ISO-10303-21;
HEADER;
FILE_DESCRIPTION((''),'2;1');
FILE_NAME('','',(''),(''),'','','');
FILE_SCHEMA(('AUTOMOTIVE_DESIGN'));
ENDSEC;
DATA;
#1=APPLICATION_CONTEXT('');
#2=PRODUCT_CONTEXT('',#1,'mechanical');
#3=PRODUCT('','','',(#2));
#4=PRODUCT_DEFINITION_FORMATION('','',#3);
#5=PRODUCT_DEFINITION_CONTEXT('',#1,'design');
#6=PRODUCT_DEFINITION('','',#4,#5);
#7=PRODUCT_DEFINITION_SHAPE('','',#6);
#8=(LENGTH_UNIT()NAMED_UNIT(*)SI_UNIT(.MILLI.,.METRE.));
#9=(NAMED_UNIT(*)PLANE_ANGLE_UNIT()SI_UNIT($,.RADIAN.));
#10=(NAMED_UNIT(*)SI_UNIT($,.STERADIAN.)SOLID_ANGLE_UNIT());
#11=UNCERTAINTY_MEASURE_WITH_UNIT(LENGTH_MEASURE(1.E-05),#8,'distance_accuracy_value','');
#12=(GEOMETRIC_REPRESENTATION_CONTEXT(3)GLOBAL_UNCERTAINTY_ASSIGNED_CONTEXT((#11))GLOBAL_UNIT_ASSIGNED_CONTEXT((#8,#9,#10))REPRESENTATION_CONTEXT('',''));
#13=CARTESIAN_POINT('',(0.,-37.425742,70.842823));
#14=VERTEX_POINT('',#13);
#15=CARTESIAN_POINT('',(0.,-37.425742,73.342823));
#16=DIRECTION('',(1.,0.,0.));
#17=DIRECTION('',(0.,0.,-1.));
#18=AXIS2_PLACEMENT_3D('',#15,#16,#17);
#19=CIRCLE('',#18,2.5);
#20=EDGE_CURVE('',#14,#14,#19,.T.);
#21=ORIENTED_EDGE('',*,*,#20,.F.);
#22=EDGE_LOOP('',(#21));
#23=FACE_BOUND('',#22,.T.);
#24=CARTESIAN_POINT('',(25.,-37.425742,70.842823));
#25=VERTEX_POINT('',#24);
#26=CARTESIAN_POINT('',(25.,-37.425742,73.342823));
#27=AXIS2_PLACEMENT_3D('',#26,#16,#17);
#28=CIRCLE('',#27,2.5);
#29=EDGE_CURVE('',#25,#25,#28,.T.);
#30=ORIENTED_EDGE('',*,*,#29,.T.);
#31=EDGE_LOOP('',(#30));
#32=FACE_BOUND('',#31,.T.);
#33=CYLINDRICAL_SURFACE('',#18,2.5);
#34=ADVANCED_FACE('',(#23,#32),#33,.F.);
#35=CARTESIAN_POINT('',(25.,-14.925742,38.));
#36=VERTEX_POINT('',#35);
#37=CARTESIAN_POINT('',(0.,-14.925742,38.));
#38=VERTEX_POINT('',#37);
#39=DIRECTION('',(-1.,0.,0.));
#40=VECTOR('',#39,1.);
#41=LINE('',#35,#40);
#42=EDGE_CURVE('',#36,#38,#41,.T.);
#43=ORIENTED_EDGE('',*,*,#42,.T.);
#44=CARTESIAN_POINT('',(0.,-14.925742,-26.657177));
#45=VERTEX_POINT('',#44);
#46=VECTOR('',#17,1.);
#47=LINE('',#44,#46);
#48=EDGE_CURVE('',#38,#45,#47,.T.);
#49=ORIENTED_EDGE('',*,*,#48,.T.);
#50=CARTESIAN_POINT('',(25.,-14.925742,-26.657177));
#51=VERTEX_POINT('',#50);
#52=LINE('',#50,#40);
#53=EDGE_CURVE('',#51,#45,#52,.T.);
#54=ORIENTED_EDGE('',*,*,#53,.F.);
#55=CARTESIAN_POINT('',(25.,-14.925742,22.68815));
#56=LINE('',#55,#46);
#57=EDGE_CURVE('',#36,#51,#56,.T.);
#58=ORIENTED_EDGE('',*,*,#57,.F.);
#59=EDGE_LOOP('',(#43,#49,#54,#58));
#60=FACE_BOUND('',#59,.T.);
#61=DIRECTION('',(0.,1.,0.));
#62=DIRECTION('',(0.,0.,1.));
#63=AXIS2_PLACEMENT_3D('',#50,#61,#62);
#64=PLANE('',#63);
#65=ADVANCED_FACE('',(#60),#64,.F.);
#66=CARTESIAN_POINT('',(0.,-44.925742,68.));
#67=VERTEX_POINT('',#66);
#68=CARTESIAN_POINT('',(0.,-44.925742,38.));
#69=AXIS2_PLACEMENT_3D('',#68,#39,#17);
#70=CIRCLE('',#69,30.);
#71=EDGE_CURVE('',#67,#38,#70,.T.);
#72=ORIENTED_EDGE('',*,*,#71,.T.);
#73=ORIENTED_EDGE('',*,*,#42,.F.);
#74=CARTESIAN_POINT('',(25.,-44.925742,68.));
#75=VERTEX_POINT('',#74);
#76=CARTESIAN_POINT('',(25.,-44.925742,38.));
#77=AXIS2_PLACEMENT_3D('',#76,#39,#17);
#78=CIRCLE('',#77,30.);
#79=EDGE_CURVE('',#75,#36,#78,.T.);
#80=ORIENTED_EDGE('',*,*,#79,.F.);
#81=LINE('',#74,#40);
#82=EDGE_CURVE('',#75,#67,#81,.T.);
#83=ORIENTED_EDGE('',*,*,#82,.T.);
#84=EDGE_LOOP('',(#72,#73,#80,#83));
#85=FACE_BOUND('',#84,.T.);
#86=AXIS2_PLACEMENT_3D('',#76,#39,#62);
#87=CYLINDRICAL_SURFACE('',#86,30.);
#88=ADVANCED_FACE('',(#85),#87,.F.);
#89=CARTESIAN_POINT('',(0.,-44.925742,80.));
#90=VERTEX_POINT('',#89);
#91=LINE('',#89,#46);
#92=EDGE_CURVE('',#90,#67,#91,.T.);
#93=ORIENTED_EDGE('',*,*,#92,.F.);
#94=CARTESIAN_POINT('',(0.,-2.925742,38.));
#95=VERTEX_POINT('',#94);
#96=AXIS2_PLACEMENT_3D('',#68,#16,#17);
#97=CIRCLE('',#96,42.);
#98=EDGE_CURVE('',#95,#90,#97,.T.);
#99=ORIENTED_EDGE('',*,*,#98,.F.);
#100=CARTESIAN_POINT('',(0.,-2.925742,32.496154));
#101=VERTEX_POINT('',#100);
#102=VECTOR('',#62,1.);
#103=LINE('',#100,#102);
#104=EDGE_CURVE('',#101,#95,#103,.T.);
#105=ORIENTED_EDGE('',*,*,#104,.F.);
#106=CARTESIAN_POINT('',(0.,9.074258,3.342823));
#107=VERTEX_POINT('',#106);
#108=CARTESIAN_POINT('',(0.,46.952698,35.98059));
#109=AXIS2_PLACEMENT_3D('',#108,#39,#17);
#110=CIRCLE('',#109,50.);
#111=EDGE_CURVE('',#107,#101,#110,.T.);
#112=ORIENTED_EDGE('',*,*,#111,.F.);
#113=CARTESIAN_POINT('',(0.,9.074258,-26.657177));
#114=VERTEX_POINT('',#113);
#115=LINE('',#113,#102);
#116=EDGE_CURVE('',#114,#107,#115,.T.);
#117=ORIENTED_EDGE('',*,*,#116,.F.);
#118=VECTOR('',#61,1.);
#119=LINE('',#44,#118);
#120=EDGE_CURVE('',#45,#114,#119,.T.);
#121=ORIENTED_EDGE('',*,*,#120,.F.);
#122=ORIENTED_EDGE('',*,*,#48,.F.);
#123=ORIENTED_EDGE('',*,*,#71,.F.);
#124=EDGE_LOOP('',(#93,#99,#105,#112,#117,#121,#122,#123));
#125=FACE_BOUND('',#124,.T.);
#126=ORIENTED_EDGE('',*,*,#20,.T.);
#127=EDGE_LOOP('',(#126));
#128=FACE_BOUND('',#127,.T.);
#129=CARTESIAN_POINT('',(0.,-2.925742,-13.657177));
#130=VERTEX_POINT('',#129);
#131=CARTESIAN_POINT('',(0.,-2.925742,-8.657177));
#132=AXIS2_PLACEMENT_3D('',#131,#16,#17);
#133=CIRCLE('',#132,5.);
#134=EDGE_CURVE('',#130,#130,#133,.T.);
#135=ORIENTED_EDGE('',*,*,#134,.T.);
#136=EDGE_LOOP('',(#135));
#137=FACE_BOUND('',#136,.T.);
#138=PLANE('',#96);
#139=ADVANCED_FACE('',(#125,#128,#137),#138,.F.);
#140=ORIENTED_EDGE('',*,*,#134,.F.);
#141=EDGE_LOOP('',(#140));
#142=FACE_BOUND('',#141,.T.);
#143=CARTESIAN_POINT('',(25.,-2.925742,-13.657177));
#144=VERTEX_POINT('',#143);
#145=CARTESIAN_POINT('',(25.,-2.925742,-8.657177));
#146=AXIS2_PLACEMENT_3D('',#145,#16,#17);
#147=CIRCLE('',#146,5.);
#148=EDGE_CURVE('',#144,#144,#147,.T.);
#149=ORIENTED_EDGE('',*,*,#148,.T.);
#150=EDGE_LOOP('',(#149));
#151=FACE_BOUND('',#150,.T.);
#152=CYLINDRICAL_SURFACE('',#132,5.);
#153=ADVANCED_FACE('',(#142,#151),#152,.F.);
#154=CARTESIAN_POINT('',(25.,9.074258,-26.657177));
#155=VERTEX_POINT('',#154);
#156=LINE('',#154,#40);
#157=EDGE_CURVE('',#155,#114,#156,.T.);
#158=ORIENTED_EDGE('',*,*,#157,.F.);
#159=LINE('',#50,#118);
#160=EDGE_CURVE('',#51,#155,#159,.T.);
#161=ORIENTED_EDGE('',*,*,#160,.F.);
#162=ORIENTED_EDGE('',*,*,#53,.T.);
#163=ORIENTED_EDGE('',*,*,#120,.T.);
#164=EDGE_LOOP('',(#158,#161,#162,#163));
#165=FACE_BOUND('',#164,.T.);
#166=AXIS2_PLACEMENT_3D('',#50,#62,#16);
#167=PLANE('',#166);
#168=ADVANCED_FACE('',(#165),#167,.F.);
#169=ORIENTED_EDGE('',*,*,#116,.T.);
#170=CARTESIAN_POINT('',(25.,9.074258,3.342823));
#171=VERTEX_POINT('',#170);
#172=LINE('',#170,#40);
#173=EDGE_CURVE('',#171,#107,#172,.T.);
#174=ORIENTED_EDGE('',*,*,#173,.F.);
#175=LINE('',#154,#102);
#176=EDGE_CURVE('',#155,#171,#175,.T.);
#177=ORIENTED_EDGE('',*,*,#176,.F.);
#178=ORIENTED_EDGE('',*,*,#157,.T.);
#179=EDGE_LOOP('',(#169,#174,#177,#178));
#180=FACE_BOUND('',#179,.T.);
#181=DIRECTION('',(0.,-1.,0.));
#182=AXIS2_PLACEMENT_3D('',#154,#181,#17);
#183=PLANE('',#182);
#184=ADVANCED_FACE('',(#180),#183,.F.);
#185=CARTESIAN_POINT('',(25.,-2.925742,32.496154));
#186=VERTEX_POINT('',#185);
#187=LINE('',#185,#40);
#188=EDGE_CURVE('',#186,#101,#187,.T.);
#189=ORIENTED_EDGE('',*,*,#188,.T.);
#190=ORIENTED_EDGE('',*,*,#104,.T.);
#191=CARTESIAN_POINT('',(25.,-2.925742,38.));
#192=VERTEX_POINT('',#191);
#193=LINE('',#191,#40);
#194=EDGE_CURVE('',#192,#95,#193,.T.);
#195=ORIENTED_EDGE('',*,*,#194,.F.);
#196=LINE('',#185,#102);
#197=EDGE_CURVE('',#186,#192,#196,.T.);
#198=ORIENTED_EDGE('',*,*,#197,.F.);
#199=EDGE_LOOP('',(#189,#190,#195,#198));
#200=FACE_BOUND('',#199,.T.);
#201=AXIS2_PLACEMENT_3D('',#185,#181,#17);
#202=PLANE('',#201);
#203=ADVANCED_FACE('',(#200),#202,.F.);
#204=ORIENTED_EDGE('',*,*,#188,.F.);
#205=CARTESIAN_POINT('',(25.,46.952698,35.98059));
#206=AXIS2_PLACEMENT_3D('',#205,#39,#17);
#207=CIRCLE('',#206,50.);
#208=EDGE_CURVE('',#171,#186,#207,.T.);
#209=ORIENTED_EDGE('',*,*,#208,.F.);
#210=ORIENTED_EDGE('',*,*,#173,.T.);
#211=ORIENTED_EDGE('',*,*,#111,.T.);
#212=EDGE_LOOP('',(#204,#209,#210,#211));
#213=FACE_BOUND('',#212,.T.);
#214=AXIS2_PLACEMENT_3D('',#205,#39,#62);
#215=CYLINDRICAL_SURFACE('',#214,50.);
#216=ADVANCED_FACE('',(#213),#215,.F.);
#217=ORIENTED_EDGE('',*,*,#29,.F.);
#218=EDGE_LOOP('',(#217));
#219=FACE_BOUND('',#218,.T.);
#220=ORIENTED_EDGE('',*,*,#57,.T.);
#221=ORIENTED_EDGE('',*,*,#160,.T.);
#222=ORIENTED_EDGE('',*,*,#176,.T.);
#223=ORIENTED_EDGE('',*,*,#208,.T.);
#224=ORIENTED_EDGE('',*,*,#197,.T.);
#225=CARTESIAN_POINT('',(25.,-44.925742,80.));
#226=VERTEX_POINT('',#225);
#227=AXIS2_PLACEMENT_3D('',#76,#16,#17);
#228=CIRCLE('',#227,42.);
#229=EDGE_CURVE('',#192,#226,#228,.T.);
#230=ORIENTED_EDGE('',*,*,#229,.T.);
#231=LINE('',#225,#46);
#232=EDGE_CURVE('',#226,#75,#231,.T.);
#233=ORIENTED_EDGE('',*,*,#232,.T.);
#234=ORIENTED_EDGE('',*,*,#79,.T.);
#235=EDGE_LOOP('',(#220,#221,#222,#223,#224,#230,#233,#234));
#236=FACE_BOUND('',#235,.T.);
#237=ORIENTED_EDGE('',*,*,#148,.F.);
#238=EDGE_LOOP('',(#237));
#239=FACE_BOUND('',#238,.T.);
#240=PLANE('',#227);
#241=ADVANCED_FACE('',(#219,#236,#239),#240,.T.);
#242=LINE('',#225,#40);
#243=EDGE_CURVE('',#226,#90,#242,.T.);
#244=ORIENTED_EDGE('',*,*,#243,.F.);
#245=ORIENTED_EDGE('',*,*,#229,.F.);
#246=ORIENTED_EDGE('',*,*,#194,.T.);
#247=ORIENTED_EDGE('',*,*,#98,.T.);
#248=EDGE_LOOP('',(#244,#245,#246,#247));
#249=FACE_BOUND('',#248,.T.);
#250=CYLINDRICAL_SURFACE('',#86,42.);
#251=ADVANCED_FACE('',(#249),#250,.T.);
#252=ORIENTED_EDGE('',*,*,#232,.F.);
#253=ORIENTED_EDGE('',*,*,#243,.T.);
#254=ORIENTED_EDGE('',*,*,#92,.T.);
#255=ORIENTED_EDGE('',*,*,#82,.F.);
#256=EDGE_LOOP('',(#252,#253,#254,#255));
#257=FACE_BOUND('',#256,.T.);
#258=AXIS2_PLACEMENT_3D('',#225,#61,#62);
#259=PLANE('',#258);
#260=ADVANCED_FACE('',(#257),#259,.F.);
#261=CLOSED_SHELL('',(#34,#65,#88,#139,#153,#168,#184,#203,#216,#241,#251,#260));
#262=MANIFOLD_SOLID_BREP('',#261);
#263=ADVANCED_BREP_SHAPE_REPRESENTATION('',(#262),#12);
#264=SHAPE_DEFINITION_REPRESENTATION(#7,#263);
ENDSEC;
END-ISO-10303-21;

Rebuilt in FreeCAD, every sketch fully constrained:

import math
import FreeCAD as App
import Part
import Sketcher

V = App.Vector

doc = App.newDocument("Part")
body = doc.addObject("PartDesign::Body", "Body")

sketch1 = doc.addObject("Sketcher::SketchObject", "Sketch")
body.addObject(sketch1)
sketch1.AttachmentSupport = (doc.YZ_Plane, [""])
sketch1.MapMode = "FlatFace"
sketch1.addGeometry([
    Part.LineSegment(V(-3, 32, 0), V(-3, 38, 0)),
    Part.ArcOfCircle(Part.Circle(V(-45, 38, 0), V(0, 0, 1), 42), math.radians(0), math.radians(90)),
    Part.LineSegment(V(-45, 80, 0), V(-45, 68, 0)),
    Part.ArcOfCircle(Part.Circle(V(-45, 38, 0), V(0, 0, 1), 30), math.radians(0), math.radians(90)),
    Part.LineSegment(V(-15, 38, 0), V(-15, -27, 0)),
    Part.LineSegment(V(-15, -27, 0), V(9, -27, 0)),
    Part.LineSegment(V(9, -27, 0), V(9, 3, 0)),
    Part.ArcOfCircle(Part.Circle(V(47, 36, 0), V(0, 0, 1), 50), math.radians(-176), math.radians(-139)),
], False)
sketch1.addConstraint([
    Sketcher.Constraint("Tangent", 0, 2, 1, 1),
    Sketcher.Constraint("Coincident", 1, 2, 2, 1),
    Sketcher.Constraint("Coincident", 2, 2, 3, 2),
    Sketcher.Constraint("Tangent", 3, 1, 4, 1),
    Sketcher.Constraint("Coincident", 4, 2, 5, 1),
    Sketcher.Constraint("Coincident", 5, 2, 6, 1),
    Sketcher.Constraint("Coincident", 6, 2, 7, 2),
    Sketcher.Constraint("Coincident", 7, 1, 0, 1),
    Sketcher.Constraint("Vertical", 0),
    Sketcher.Constraint("Vertical", 2),
    Sketcher.Constraint("Vertical", 4),
    Sketcher.Constraint("Horizontal", 5),
    Sketcher.Constraint("Vertical", 6),
    Sketcher.Constraint("Coincident", 3, 3, 1, 3),
    Sketcher.Constraint("Vertical", 3, 3, 1, 2),
    Sketcher.Constraint("Radius", 1, 42.0),
    Sketcher.Constraint("Radius", 3, 30.0),
    Sketcher.Constraint("Radius", 7, 50.0),
    Sketcher.Constraint("DistanceX", 5, 1, 5, 2, 24.0),
    Sketcher.Constraint("DistanceY", 6, 1, 6, 2, 30.0),
    Sketcher.Constraint("DistanceY", -1, 1, 1, 3, 38.0),
    Sketcher.Constraint("DistanceY", 0, 1, 0, 2, 5.503846),
    Sketcher.Constraint("DistanceY", 4, 2, 4, 1, 64.657177),
    Sketcher.Constraint("DistanceX", 1, 3, -1, 1, 44.925742),
])
pad1 = doc.addObject("PartDesign::Pad", "Pad")
body.addObject(pad1)
pad1.Profile = sketch1
pad1.Length = 25

sketch2 = doc.addObject("Sketcher::SketchObject", "Sketch001")
body.addObject(sketch2)
sketch2.AttachmentSupport = (doc.YZ_Plane, [""])
sketch2.MapMode = "FlatFace"
sketch2.AttachmentOffset = App.Placement(V(0, 0, 25), App.Rotation())
sketch2.addGeometry(Part.Circle(V(-3, -9, 0), V(0, 0, 1), 5), False)
sketch2.addConstraint([
    Sketcher.Constraint("Diameter", 0, 10.0),
    Sketcher.Constraint("DistanceX", 0, 3, -1, 1, 2.925742),
    Sketcher.Constraint("DistanceY", 0, 3, -1, 1, 8.657177),
])
pocket1 = doc.addObject("PartDesign::Pocket", "Pocket")
body.addObject(pocket1)
pocket1.Profile = sketch2
pocket1.Type = "ThroughAll"

sketch3 = doc.addObject("Sketcher::SketchObject", "Sketch002")
body.addObject(sketch3)
sketch3.AttachmentSupport = (doc.YZ_Plane, [""])
sketch3.MapMode = "FlatFace"
sketch3.AttachmentOffset = App.Placement(V(0, 0, 25), App.Rotation())
sketch3.addGeometry(Part.Circle(V(-37.4, 73.3, 0), V(0, 0, 1), 2.5), False)
sketch3.addConstraint([
    Sketcher.Constraint("Diameter", 0, 5.0),
    Sketcher.Constraint("DistanceX", 0, 3, -1, 1, 37.425742),
    Sketcher.Constraint("DistanceY", -1, 1, 0, 3, 73.342823),
])
pocket2 = doc.addObject("PartDesign::Pocket", "Pocket001")
body.addObject(pocket2)
pocket2.Profile = sketch3
pocket2.Type = "ThroughAll"

doc.recompute()
